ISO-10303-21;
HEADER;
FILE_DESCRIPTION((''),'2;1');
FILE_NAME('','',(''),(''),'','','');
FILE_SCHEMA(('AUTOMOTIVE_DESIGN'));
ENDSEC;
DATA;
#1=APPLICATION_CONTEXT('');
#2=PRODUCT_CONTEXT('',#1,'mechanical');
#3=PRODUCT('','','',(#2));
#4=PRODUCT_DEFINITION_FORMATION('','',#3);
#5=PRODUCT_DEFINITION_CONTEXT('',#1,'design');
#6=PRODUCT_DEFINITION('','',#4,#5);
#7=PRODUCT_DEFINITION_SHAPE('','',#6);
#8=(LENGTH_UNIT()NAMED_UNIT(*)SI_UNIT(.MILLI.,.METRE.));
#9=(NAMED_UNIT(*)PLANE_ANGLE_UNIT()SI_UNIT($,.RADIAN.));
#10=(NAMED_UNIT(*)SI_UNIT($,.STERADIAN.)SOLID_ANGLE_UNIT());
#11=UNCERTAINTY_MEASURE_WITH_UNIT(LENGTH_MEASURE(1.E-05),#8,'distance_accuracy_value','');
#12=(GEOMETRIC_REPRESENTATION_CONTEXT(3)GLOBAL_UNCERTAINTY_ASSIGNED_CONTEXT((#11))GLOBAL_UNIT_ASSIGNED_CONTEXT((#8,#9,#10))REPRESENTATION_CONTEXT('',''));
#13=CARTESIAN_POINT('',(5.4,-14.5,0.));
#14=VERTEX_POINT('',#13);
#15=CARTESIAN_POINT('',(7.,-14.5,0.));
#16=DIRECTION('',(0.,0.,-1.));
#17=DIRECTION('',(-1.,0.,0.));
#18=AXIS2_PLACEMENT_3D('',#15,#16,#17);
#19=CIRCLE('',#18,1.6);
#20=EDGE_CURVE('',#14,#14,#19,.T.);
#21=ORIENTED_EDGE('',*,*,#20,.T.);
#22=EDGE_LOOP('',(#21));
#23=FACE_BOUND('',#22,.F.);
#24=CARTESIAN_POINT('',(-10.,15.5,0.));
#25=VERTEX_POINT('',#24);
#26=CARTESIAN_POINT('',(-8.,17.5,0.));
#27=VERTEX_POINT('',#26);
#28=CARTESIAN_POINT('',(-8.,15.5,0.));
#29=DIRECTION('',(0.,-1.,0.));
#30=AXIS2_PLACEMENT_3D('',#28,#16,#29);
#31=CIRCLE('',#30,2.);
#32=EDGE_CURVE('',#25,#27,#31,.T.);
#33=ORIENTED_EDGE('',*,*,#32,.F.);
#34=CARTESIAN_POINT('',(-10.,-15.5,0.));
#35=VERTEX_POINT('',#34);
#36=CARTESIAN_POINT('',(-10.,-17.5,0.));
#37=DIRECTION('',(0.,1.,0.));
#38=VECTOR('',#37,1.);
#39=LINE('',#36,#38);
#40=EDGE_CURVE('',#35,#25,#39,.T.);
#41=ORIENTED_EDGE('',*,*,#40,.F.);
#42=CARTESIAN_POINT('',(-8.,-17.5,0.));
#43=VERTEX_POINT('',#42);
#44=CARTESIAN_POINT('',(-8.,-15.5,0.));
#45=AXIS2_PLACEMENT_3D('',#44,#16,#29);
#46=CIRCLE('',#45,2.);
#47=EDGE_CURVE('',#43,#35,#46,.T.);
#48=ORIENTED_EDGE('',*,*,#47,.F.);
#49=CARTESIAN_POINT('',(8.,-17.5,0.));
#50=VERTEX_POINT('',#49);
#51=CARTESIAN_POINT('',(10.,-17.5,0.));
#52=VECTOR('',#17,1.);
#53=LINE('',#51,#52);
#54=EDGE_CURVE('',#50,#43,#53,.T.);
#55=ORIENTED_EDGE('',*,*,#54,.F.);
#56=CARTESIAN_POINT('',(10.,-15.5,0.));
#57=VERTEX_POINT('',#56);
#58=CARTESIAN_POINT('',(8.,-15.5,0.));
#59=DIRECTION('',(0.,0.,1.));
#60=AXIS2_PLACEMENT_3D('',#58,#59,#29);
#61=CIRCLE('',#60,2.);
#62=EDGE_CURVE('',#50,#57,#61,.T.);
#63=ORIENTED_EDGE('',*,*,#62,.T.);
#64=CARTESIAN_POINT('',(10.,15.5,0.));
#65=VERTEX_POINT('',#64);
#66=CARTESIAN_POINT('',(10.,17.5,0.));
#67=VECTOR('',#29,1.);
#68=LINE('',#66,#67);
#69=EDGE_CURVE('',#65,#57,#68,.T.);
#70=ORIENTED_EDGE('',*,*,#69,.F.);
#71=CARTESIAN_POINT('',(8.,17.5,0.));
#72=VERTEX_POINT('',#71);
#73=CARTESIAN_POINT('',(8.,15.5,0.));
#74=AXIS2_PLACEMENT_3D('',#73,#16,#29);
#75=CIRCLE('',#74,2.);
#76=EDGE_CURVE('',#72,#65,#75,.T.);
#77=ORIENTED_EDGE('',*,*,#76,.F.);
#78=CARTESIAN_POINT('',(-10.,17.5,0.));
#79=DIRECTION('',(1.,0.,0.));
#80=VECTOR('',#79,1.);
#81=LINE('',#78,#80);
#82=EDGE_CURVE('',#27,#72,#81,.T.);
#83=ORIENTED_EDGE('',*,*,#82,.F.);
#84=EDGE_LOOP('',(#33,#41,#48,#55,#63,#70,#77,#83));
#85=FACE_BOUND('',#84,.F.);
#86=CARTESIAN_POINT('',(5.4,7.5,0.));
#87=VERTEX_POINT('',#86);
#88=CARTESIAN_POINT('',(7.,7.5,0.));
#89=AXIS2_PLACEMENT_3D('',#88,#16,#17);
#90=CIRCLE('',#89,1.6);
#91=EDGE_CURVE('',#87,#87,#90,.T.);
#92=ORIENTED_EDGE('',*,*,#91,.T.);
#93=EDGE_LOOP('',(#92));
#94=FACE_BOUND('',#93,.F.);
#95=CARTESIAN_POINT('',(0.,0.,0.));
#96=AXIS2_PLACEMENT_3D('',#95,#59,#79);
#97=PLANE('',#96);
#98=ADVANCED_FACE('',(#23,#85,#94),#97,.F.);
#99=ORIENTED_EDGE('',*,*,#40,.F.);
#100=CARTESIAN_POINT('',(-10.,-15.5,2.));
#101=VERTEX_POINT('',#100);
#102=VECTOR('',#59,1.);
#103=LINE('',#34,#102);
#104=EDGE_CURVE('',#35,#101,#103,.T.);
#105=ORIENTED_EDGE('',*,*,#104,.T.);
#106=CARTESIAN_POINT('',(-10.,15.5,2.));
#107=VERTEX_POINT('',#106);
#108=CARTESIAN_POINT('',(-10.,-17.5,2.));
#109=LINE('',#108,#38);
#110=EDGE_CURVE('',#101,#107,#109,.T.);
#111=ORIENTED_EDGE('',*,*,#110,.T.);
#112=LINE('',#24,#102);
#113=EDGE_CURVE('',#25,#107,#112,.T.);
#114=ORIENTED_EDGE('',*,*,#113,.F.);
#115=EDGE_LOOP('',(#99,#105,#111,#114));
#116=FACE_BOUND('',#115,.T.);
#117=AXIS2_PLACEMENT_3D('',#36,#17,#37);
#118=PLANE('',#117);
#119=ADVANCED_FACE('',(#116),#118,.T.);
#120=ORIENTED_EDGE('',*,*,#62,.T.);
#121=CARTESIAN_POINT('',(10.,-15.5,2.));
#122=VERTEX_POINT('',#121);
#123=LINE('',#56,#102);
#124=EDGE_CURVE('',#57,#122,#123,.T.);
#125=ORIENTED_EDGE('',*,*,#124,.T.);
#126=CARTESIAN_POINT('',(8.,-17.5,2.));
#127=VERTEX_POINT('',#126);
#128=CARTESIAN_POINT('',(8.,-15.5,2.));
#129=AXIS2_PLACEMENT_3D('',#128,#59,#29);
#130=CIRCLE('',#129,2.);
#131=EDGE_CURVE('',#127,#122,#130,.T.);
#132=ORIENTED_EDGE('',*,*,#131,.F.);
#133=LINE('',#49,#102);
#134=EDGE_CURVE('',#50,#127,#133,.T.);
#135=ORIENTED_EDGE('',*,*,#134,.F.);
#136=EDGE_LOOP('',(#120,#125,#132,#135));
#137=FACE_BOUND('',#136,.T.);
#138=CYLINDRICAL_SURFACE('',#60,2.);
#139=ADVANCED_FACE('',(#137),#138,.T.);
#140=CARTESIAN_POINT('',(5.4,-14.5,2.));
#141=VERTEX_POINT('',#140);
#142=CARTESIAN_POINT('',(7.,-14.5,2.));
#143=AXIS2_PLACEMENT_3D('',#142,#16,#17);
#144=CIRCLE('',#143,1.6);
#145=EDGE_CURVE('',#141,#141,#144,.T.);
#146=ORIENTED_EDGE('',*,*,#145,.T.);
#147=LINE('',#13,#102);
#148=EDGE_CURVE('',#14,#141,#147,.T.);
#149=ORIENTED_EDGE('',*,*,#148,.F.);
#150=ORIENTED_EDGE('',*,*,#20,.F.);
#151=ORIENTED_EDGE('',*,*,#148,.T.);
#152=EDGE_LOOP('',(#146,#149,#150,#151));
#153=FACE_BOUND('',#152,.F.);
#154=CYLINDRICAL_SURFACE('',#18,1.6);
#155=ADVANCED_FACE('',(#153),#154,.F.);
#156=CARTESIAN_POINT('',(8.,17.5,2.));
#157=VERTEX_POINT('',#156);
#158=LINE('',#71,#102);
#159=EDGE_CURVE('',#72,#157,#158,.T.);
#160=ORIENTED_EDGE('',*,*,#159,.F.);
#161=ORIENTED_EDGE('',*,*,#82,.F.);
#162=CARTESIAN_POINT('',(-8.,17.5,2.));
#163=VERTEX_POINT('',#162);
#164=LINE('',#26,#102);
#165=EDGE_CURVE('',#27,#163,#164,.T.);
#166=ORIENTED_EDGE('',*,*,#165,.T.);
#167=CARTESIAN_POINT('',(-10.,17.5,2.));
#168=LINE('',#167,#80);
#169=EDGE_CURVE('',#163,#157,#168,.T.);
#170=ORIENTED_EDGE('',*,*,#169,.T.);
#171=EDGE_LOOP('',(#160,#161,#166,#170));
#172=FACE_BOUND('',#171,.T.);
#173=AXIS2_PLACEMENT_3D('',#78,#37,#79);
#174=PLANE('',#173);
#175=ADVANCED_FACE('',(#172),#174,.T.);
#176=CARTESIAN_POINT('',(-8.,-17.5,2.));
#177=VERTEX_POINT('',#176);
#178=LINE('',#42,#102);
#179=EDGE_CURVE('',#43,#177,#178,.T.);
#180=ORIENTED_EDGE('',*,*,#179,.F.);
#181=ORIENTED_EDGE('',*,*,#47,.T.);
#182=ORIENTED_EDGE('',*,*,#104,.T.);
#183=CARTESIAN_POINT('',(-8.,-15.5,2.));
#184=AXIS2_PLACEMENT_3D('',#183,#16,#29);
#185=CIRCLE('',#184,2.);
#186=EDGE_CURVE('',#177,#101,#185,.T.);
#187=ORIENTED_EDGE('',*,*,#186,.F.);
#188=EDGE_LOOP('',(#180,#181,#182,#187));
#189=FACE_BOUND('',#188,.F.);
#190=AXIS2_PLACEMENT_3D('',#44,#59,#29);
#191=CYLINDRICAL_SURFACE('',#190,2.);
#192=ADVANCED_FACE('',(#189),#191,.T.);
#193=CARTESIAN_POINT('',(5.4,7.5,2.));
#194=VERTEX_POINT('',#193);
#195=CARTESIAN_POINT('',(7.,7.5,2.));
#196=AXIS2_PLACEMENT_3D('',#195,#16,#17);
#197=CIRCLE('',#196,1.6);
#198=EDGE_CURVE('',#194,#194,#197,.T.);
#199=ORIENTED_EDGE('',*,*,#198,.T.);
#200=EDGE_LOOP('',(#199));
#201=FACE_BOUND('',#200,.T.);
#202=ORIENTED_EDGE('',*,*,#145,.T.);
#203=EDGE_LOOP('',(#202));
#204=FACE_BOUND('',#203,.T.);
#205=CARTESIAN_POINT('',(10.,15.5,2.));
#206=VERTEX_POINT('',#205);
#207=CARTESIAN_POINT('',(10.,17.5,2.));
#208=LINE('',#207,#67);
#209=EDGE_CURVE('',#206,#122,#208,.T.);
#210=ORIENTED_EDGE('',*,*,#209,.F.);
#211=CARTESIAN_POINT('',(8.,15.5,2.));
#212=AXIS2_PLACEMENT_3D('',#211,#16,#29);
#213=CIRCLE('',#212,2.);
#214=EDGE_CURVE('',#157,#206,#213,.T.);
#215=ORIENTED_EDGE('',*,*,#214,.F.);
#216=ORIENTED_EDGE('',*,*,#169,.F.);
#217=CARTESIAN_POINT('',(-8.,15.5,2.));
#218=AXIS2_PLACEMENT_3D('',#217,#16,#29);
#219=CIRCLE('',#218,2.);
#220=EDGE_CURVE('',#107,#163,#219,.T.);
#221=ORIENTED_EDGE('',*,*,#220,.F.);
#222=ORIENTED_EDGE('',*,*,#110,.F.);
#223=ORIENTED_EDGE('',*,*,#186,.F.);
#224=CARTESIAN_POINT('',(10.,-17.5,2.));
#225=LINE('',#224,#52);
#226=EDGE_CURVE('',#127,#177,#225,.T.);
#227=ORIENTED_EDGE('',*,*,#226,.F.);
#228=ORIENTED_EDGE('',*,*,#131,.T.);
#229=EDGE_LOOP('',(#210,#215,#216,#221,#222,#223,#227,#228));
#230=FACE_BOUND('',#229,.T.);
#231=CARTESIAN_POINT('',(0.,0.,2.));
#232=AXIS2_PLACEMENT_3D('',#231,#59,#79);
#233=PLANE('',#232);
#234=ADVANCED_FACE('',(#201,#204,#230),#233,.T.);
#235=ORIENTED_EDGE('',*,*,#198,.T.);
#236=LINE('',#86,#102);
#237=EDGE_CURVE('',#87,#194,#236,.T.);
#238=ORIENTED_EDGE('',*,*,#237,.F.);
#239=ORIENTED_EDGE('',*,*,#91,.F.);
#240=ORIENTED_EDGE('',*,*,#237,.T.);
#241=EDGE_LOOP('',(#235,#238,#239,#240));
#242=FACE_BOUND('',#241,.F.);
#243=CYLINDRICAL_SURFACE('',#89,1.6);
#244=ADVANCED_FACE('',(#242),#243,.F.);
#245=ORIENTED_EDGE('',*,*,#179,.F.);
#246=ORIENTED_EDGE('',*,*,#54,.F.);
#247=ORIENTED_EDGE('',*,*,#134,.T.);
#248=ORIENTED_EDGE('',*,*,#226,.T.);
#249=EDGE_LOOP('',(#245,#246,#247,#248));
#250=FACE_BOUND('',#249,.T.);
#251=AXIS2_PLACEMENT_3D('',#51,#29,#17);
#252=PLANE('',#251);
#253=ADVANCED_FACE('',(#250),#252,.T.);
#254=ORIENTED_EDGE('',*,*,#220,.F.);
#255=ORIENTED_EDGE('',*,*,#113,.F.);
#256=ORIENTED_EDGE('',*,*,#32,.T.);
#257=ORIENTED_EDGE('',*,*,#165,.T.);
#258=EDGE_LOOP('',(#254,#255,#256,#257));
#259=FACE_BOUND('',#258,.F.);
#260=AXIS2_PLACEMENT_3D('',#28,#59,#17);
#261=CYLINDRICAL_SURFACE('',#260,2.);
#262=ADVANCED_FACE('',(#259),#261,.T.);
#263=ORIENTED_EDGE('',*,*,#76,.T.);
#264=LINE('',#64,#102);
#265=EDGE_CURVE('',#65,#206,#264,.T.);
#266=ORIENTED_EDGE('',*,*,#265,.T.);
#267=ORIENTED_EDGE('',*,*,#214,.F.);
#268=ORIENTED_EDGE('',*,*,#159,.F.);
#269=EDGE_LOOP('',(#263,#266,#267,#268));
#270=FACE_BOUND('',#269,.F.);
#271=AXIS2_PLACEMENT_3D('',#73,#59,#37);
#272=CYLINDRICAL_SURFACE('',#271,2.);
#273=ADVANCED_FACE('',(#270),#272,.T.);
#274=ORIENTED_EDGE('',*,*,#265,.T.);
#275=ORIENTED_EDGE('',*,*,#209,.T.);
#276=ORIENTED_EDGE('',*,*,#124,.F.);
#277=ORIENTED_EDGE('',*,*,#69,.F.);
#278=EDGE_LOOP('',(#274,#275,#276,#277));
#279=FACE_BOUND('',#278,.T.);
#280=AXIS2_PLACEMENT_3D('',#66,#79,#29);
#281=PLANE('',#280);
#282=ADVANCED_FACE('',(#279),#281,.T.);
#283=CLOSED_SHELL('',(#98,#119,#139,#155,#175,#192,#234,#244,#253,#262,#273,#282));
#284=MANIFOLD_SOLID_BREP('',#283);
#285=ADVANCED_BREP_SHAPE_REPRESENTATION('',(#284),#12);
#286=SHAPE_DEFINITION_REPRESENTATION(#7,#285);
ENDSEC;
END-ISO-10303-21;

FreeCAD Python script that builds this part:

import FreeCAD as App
import Part
import Sketcher
from FreeCAD import Vector


def edges_at(feature, points):
    """Names of the edges that pass closest to the given points."""
    edges = feature.Shape.Edges
    near = lambda p: min(range(len(edges)), key=lambda i: edges[i].distToShape(Part.Vertex(*p))[0])
    return sorted({f"Edge{near(p) + 1}" for p in points})


def add_polygon(sketch, points):
    """Adds a closed chain of lines whose ends are joined by coincident constraints."""
    first, n = sketch.GeometryCount, len(points)
    for a, b in zip(points, points[1:] + points[:1]):
        sketch.addGeometry(Part.LineSegment(App.Vector(*a, 0), App.Vector(*b, 0)), False)
    for i in range(n):
        sketch.addConstraint(Sketcher.Constraint("Coincident", first + i, 2, first + (i + 1) % n, 1))

doc = App.newDocument("Part")
body = doc.addObject("PartDesign::Body", "Body")

# Sketch on XY plane
sketch1 = body.newObject("Sketcher::SketchObject", "Sketch")
sketch1.AttachmentSupport = (doc.getObject("XY_Plane"), [""])
sketch1.MapMode = "FlatFace"
add_polygon(sketch1, [(-10, -18), (10, -18), (10, 18), (-10, 18)])  # lines 0-3
sketch1.addConstraint(Sketcher.Constraint("Horizontal", 0))
sketch1.addConstraint(Sketcher.Constraint("Vertical", 1))
sketch1.addConstraint(Sketcher.Constraint("Horizontal", 2))
sketch1.addConstraint(Sketcher.Constraint("Vertical", 3))
sketch1.addConstraint(Sketcher.Constraint("Symmetric", 0, 2, 2, 2, -1, 1))
sketch1.addConstraint(Sketcher.Constraint("DistanceX", 0, 1, 0, 2, 20.0))
sketch1.addConstraint(Sketcher.Constraint("DistanceY", 1, 1, 1, 2, 35.0))
pad1 = body.newObject("PartDesign::Pad", "Pad")
pad1.Profile = sketch1
pad1.Length = 2
doc.recompute()

fillet = body.newObject("PartDesign::Fillet", "Fillet")
fillet.Base = (pad1, edges_at(pad1, [
    (-10, 17.5, 1),
    (10, 17.5, 1),
    (10, -17.5, 1),
    (-10, -17.5, 1),
]))
fillet.Radius = 2

# Sketch on XY plane
sketch2 = body.newObject("Sketcher::SketchObject", "Sketch001")
sketch2.AttachmentSupport = (doc.getObject("XY_Plane"), [""])
sketch2.MapMode = "FlatFace"
sketch2.addGeometry(Part.Circle(Vector(7, -14.5, 0), Vector(0, 0, 1), 1.6), False)
sketch2.addGeometry(Part.Circle(Vector(7, 7.5, 0), Vector(0, 0, 1), 1.6), False)
sketch2.addConstraint(Sketcher.Constraint("Equal", 0, 1))
sketch2.addConstraint(Sketcher.Constraint("Vertical", 0, 3, 1, 3))
sketch2.addConstraint(Sketcher.Constraint("Diameter", 0, 3.2))
sketch2.addConstraint(Sketcher.Constraint("DistanceX", -1, 1, 0, 3, 7.0))
sketch2.addConstraint(Sketcher.Constraint("DistanceY", 0, 3, 1, 3, 22.0))
sketch2.addConstraint(Sketcher.Constraint("DistanceY", 0, 3, -1, 1, 14.5))
pocket1 = body.newObject("PartDesign::Pocket", "Pocket")
pocket1.Profile = sketch2
pocket1.Length = 2
pocket1.Reversed = True

doc.recompute()
